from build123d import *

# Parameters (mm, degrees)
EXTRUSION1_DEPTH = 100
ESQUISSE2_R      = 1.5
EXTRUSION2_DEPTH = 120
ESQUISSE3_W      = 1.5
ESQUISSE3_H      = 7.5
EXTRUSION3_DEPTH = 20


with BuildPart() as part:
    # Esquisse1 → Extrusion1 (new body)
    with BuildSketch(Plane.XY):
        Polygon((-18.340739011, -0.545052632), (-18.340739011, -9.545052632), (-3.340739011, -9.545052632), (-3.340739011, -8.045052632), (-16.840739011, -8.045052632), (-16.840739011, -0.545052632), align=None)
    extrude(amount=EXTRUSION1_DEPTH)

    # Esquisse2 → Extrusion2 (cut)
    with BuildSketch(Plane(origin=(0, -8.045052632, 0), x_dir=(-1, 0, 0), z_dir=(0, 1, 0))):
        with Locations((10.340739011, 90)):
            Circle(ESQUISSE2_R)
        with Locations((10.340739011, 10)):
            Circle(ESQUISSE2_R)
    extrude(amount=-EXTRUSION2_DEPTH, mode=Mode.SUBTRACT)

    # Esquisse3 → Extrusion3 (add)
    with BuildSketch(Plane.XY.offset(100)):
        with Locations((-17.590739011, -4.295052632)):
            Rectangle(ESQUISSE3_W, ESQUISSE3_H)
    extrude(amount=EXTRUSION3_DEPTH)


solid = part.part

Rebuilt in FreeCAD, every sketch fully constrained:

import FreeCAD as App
import Part
import Sketcher

V = App.Vector
Q = App.Units.Quantity


def add_polygon(sketch, points):
    """Adds a closed chain of lines whose ends are joined by coincident constraints."""
    first, n = sketch.GeometryCount, len(points)
    for a, b in zip(points, points[1:] + points[:1]):
        sketch.addGeometry(Part.LineSegment(App.Vector(*a, 0), App.Vector(*b, 0)), False)
    for i in range(n):
        sketch.addConstraint(Sketcher.Constraint("Coincident", first + i, 2, first + (i + 1) % n, 1))

doc = App.newDocument("Part")
params = doc.addObject("Spreadsheet::Sheet", "Params")
for row, (alias, value) in enumerate([
    ("sketch1_width", "15 mm"),
    ("sketch1_height", "9 mm"),
    ("sketch1_width2", "13.5 mm"),
    ("pad1_length", "100 mm"),
    ("sketch2_diameter", "3 mm"),
    ("pocket1_length", "120 mm"),
    ("sketch3_width", "1.5 mm"),
    ("sketch3_height", "7.5 mm"),
    ("pad2_length", "20 mm"),
], start=1):
    params.set(f"A{row}", alias)
    params.set(f"B{row}", "=" + value)
    params.setAlias(f"B{row}", alias)

body = doc.addObject("PartDesign::Body", "Body")

# Sketch on XY plane
sketch1 = doc.addObject("Sketcher::SketchObject", "Sketch")
body.addObject(sketch1)
sketch1.AttachmentSupport = (doc.XY_Plane, [""])
sketch1.MapMode = "FlatFace"
add_polygon(sketch1, [(-18.340739, -0.545053), (-18.340739, -9.545053), (-3.340739, -9.545053), (-3.340739, -8.045053), (-16.840739, -8.045053), (-16.840739, -0.545053)])  # lines 0-5
sketch1.addConstraint(Sketcher.Constraint("Vertical", 0))
sketch1.addConstraint(Sketcher.Constraint("Horizontal", 1))
sketch1.addConstraint(Sketcher.Constraint("Vertical", 2))
sketch1.addConstraint(Sketcher.Constraint("Horizontal", 3))
sketch1.addConstraint(Sketcher.Constraint("Vertical", 4))
sketch1.addConstraint(Sketcher.Constraint("Horizontal", 5))
sketch1.addConstraint(Sketcher.Constraint("Equal", 5, 2))
sketch1.addConstraint(Sketcher.Constraint("DistanceX", 1, 1, 1, 2, Q("15 mm")))
sketch1.addConstraint(Sketcher.Constraint("DistanceY", 0, 2, 0, 1, Q("9 mm")))
sketch1.addConstraint(Sketcher.Constraint("DistanceX", 3, 2, 3, 1, Q("13.5 mm")))
sketch1.addConstraint(Sketcher.Constraint("DistanceX", 0, 2, -1, 1, Q("18.340739 mm")))
sketch1.addConstraint(Sketcher.Constraint("DistanceY", 0, 2, -1, 1, Q("9.545053 mm")))
sketch1.setExpression("Constraints[13]", "Params.sketch1_width")
sketch1.setExpression("Constraints[14]", "Params.sketch1_height")
sketch1.setExpression("Constraints[15]", "Params.sketch1_width2")
pad1 = doc.addObject("PartDesign::Pad", "Pad")
body.addObject(pad1)
pad1.Profile = sketch1
pad1.setExpression("Length", "Params.pad1_length")

# Sketch on XZ plane
sketch2 = doc.addObject("Sketcher::SketchObject", "Sketch001")
body.addObject(sketch2)
sketch2.AttachmentSupport = (doc.XZ_Plane, [""])
sketch2.MapMode = "FlatFace"
sketch2.AttachmentOffset = App.Placement(V(0, 0, 8.045053), App.Rotation())
sketch2.addGeometry(Part.Circle(V(-10.340739, 90, 0), V(0, 0, 1), 1.5), False)
sketch2.addGeometry(Part.Circle(V(-10.340739, 10, 0), V(0, 0, 1), 1.5), False)
sketch2.addConstraint(Sketcher.Constraint("Equal", 0, 1))
sketch2.addConstraint(Sketcher.Constraint("Vertical", 0, 3, 1, 3))
sketch2.addConstraint(Sketcher.Constraint("Diameter", 0, Q("3 mm")))
sketch2.addConstraint(Sketcher.Constraint("DistanceY", -1, 1, 0, 3, Q("90 mm")))
sketch2.addConstraint(Sketcher.Constraint("DistanceY", -1, 1, 1, 3, Q("10 mm")))
sketch2.addConstraint(Sketcher.Constraint("DistanceX", 0, 3, -1, 1, Q("10.340739 mm")))
sketch2.setExpression("Constraints[2]", "Params.sketch2_diameter")
pocket1 = doc.addObject("PartDesign::Pocket", "Pocket")
body.addObject(pocket1)
pocket1.Profile = sketch2
pocket1.setExpression("Length", "Params.pocket1_length")
pocket1.Reversed = True

# Sketch on XY plane
sketch3 = doc.addObject("Sketcher::SketchObject", "Sketch002")
body.addObject(sketch3)
sketch3.AttachmentSupport = (doc.XY_Plane, [""])
sketch3.MapMode = "FlatFace"
sketch3.AttachmentOffset = App.Placement(V(0, 0, 100), App.Rotation())
add_polygon(sketch3, [(-18.340739, -0.545053), (-18.340739, -8.045053), (-16.840739, -8.045053), (-16.840739, -0.545053)])  # lines 0-3
sketch3.addConstraint(Sketcher.Constraint("Vertical", 0))
sketch3.addConstraint(Sketcher.Constraint("Horizontal", 1))
sketch3.addConstraint(Sketcher.Constraint("Vertical", 2))
sketch3.addConstraint(Sketcher.Constraint("Horizontal", 3))
sketch3.addConstraint(Sketcher.Constraint("DistanceX", 1, 1, 1, 2, Q("1.5 mm")))
sketch3.addConstraint(Sketcher.Constraint("DistanceY", 0, 2, 0, 1, Q("7.5 mm")))
sketch3.addConstraint(Sketcher.Constraint("DistanceX", 0, 2, -1, 1, Q("18.340739 mm")))
sketch3.addConstraint(Sketcher.Constraint("DistanceY", 0, 2, -1, 1, Q("8.045053 mm")))
sketch3.setExpression("Constraints[8]", "Params.sketch3_width")
sketch3.setExpression("Constraints[9]", "Params.sketch3_height")
pad2 = doc.addObject("PartDesign::Pad", "Pad001")
body.addObject(pad2)
pad2.Profile = sketch3
pad2.setExpression("Length", "Params.pad2_length")

doc.recompute()
